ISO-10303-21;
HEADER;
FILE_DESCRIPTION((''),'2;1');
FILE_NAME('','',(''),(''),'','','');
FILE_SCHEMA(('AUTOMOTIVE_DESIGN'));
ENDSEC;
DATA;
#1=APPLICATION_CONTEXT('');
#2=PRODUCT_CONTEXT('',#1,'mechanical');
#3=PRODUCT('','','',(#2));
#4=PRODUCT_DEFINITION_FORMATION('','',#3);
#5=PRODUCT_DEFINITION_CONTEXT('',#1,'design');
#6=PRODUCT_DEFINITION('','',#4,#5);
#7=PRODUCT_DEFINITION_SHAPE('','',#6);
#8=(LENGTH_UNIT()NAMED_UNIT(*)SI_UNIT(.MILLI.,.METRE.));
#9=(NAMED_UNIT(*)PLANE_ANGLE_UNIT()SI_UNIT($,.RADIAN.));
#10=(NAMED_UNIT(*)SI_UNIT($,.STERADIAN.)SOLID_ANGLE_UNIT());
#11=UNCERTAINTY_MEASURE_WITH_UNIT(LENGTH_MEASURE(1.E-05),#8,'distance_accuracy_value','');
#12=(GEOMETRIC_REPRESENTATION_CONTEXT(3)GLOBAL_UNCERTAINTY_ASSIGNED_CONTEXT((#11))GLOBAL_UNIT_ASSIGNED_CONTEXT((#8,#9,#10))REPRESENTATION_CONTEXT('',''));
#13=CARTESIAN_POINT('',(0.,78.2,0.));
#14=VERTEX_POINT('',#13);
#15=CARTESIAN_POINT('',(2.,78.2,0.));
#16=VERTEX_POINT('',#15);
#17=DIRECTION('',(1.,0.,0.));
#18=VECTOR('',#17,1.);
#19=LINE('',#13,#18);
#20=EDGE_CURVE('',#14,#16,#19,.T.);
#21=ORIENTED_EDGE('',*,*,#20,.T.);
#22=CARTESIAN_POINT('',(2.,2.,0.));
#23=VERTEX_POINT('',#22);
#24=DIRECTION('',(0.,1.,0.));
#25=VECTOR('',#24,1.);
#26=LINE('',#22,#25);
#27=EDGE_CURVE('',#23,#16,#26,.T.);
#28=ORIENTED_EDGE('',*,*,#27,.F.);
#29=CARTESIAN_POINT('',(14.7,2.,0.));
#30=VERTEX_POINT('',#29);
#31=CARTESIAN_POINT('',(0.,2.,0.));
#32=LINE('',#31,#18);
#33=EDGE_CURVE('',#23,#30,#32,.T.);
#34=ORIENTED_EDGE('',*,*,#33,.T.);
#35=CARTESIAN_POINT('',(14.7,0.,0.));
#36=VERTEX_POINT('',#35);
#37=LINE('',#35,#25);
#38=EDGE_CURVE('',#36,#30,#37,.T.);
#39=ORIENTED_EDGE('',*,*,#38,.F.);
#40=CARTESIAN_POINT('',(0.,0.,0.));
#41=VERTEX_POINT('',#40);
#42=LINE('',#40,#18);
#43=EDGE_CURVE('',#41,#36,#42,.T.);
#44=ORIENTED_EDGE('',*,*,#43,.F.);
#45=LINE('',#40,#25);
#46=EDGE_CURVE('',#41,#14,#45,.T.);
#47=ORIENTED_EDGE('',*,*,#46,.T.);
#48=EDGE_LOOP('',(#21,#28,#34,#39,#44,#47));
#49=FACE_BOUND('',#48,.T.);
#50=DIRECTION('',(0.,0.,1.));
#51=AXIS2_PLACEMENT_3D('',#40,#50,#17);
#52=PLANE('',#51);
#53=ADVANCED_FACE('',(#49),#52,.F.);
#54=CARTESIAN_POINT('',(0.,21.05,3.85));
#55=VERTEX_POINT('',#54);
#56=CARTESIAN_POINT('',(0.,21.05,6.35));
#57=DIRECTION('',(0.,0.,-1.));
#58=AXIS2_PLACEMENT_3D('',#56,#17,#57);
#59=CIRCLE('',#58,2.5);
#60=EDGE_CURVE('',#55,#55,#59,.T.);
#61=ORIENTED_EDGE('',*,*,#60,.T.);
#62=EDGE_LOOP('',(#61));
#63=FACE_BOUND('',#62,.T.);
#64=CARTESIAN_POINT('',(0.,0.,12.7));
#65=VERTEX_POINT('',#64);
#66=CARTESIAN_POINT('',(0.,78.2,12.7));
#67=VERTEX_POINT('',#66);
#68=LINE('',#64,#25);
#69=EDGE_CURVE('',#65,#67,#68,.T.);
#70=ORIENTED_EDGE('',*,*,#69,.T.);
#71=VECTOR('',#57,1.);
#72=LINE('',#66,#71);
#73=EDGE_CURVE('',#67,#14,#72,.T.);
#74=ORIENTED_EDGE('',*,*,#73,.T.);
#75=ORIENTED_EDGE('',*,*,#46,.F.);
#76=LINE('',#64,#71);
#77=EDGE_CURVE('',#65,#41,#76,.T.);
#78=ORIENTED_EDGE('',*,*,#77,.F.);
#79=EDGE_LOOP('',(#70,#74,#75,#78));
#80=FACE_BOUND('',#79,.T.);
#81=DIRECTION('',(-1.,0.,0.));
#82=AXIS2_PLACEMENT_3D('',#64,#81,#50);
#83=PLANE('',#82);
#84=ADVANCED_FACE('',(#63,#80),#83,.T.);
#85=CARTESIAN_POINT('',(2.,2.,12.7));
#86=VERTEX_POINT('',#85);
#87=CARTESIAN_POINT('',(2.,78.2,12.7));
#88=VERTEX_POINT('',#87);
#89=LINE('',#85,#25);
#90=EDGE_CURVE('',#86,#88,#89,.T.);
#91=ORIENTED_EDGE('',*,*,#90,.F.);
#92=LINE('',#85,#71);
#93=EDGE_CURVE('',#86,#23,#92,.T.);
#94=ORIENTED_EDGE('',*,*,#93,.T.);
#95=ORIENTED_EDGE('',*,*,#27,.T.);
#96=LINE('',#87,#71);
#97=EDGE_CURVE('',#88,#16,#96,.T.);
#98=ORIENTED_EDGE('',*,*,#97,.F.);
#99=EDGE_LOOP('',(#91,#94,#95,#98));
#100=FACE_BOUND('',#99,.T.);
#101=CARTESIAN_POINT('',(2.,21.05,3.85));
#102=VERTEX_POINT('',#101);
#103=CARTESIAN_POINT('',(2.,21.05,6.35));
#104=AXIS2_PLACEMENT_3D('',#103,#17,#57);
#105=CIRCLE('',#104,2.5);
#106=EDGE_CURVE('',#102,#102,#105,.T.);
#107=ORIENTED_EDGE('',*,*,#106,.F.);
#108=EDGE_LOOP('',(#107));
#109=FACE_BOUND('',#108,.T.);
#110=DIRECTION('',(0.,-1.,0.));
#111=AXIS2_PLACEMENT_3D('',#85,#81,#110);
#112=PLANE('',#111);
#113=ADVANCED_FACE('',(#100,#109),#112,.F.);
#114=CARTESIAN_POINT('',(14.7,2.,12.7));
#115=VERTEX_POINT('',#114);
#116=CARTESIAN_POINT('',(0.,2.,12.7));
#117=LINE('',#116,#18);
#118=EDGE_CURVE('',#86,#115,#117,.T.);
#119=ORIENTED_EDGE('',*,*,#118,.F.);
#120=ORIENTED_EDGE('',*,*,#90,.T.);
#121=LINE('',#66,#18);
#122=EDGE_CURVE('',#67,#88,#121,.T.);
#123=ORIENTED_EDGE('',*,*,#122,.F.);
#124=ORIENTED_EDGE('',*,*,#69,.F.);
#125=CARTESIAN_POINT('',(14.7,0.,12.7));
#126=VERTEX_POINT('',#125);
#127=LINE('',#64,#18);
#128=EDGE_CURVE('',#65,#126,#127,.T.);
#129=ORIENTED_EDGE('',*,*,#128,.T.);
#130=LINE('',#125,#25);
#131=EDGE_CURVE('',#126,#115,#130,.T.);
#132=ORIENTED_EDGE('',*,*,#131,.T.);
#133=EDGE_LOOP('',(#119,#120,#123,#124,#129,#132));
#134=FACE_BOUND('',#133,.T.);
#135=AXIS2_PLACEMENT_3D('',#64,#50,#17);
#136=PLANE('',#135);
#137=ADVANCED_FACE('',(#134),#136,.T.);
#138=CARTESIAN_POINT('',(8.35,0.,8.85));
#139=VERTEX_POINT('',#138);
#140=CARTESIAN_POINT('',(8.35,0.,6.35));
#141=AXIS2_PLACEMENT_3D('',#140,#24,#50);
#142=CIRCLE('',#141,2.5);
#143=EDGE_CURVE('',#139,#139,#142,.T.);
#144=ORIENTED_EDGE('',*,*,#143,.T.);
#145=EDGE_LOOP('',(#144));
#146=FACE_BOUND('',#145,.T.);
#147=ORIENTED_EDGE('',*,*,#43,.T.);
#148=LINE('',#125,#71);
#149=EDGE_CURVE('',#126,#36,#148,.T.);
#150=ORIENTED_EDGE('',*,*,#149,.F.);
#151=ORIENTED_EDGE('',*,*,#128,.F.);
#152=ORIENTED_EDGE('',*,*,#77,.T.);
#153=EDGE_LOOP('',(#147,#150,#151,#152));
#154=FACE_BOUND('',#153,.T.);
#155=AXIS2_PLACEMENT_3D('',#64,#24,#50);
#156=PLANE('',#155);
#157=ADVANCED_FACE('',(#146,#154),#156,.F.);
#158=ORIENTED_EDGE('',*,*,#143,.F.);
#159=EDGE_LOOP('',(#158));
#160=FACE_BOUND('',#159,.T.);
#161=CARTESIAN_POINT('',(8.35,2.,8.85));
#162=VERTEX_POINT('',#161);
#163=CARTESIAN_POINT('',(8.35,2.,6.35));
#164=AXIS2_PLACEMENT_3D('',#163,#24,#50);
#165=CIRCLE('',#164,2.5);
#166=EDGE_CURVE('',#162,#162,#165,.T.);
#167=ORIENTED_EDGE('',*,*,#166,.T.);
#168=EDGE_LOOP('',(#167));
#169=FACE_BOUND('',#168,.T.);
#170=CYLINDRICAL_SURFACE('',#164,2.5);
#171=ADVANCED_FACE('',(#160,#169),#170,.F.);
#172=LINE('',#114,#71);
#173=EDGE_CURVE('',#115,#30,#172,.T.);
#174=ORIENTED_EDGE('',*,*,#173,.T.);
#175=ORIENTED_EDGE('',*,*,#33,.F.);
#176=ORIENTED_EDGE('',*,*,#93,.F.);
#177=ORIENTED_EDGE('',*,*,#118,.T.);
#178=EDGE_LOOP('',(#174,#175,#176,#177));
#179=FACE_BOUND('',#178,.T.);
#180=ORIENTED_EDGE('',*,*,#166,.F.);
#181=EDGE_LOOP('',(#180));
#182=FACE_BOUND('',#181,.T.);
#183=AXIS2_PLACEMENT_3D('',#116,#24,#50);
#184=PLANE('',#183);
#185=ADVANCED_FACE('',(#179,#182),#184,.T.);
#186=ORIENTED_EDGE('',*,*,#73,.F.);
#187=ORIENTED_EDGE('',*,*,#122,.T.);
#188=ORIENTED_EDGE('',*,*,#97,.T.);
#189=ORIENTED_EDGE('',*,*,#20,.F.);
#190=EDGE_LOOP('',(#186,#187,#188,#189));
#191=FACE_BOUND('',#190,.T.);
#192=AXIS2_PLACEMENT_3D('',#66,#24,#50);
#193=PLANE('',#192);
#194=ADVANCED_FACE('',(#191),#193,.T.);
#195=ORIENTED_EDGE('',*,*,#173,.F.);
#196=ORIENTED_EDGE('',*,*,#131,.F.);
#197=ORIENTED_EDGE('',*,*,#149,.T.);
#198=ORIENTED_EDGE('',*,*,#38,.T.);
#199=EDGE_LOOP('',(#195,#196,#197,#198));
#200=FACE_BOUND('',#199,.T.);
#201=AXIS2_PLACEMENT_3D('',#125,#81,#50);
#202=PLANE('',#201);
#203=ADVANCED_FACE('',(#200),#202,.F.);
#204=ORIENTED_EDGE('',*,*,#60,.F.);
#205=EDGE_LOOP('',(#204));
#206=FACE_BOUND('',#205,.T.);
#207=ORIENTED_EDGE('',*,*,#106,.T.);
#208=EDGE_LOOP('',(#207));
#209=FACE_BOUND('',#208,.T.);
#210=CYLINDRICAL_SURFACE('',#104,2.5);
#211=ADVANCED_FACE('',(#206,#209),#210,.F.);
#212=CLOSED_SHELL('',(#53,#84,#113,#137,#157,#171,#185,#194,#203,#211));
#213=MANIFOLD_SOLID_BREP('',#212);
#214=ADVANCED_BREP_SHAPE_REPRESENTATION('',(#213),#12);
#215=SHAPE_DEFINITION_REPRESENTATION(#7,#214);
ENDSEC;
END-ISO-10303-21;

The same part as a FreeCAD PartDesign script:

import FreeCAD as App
import Part
import Sketcher

V = App.Vector

doc = App.newDocument("Part")
params = doc.addObject("Spreadsheet::Sheet", "Params")
for row, (alias, value) in enumerate([
    ("sketch1_width", "2 mm"),
    ("sketch1_width2", "14.7 mm"),
    ("sketch1_height", "76.2 mm"),
    ("pad1_length", "12.7 mm"),
    ("sketch2_diameter", "5 mm"),
    ("hole_diameter", "5 mm"),
    ("sketch3_diameter", "5 mm"),
    ("hole2_diameter", "5 mm"),
], start=1):
    params.set(f"A{row}", alias)
    params.set(f"B{row}", "=" + value)
    params.setAlias(f"B{row}", alias)

body = doc.addObject("PartDesign::Body", "Body")

# Sketch on XY plane
sketch1 = body.newObject("Sketcher::SketchObject", "Sketch")
sketch1.AttachmentSupport = (doc.getObject("XY_Plane"), [""])
sketch1.MapMode = "FlatFace"
sketch1.addGeometry([
    Part.LineSegment(V(0, 0, 0), V(14.7, 0, 0)),  # 0
    Part.LineSegment(V(14.7, 0, 0), V(14.7, 2, 0)),  # 1
    Part.LineSegment(V(14.7, 2, 0), V(2, 2, 0)),  # 2
    Part.LineSegment(V(2, 2, 0), V(2, 78.2, 0)),  # 3
    Part.LineSegment(V(2, 78.2, 0), V(0, 78.2, 0)),  # 4
    Part.LineSegment(V(0, 78.2, 0), V(0, 0, 0)),  # 5
], False)
sketch1.addConstraint([
    Sketcher.Constraint("Coincident", 0, 2, 1, 1),
    Sketcher.Constraint("Coincident", 1, 2, 2, 1),
    Sketcher.Constraint("Coincident", 2, 2, 3, 1),
    Sketcher.Constraint("Coincident", 3, 2, 4, 1),
    Sketcher.Constraint("Coincident", 4, 2, 5, 1),
    Sketcher.Constraint("Coincident", 5, 2, 0, 1),
    Sketcher.Constraint("Horizontal", 0),
    Sketcher.Constraint("Vertical", 1),
    Sketcher.Constraint("Horizontal", 2),
    Sketcher.Constraint("Vertical", 3),
    Sketcher.Constraint("Horizontal", 4),
    Sketcher.Constraint("Vertical", 5),
    Sketcher.Constraint("Coincident", 5, 2, -1, 1),
    Sketcher.Constraint("Equal", 4, 1),
    Sketcher.Constraint("DistanceX", 4, 2, 4, 1, 2.0),
    Sketcher.Constraint("DistanceX", 0, 1, 0, 2, 14.7),
    Sketcher.Constraint("DistanceY", 3, 1, 3, 2, 76.2),
])
sketch1.setExpression("Constraints[14]", "Params.sketch1_width")
sketch1.setExpression("Constraints[15]", "Params.sketch1_width2")
sketch1.setExpression("Constraints[16]", "Params.sketch1_height")
pad1 = body.newObject("PartDesign::Pad", "Pad")
pad1.Profile = sketch1
pad1.setExpression("Length", "Params.pad1_length")

# Sketch on YZ plane
sketch2 = body.newObject("Sketcher::SketchObject", "Sketch001")
sketch2.AttachmentSupport = (doc.getObject("YZ_Plane"), [""])
sketch2.MapMode = "FlatFace"
sketch2.AttachmentOffset = App.Placement(V(0, 0, 2), App.Rotation())
sketch2.addGeometry(Part.Circle(V(21.1, 6.3, 0), V(0, 0, 1), 2.5), False)
sketch2.addConstraint([
    Sketcher.Constraint("Diameter", 0, 5.0),
    Sketcher.Constraint("DistanceX", -1, 1, 0, 3, 21.05),
    Sketcher.Constraint("DistanceY", -1, 1, 0, 3, 6.35),
])
sketch2.setExpression("Constraints[0]", "Params.sketch2_diameter")
doc.recompute()
hole = body.newObject("PartDesign::Hole", "Hole")
hole.Profile = sketch2
hole.ThreadType = "None"
hole.setExpression("Diameter", "Params.hole_diameter")
hole.DepthType = "ThroughAll"

# Sketch on XZ plane
sketch3 = body.newObject("Sketcher::SketchObject", "Sketch002")
sketch3.AttachmentSupport = (doc.getObject("XZ_Plane"), [""])
sketch3.MapMode = "FlatFace"
sketch3.AttachmentOffset = App.Placement(V(0, 0, -2), App.Rotation())
sketch3.addGeometry(Part.Circle(V(8.3, 6.3, 0), V(0, 0, 1), 2.5), False)
sketch3.addConstraint([
    Sketcher.Constraint("Diameter", 0, 5.0),
    Sketcher.Constraint("DistanceX", -1, 1, 0, 3, 8.35),
    Sketcher.Constraint("DistanceY", -1, 1, 0, 3, 6.35),
])
sketch3.setExpression("Constraints[0]", "Params.sketch3_diameter")
doc.recompute()
hole2 = body.newObject("PartDesign::Hole", "Hole001")
hole2.Profile = sketch3
hole2.ThreadType = "None"
hole2.setExpression("Diameter", "Params.hole2_diameter")
hole2.DepthType = "ThroughAll"
hole2.Reversed = True

doc.recompute()
